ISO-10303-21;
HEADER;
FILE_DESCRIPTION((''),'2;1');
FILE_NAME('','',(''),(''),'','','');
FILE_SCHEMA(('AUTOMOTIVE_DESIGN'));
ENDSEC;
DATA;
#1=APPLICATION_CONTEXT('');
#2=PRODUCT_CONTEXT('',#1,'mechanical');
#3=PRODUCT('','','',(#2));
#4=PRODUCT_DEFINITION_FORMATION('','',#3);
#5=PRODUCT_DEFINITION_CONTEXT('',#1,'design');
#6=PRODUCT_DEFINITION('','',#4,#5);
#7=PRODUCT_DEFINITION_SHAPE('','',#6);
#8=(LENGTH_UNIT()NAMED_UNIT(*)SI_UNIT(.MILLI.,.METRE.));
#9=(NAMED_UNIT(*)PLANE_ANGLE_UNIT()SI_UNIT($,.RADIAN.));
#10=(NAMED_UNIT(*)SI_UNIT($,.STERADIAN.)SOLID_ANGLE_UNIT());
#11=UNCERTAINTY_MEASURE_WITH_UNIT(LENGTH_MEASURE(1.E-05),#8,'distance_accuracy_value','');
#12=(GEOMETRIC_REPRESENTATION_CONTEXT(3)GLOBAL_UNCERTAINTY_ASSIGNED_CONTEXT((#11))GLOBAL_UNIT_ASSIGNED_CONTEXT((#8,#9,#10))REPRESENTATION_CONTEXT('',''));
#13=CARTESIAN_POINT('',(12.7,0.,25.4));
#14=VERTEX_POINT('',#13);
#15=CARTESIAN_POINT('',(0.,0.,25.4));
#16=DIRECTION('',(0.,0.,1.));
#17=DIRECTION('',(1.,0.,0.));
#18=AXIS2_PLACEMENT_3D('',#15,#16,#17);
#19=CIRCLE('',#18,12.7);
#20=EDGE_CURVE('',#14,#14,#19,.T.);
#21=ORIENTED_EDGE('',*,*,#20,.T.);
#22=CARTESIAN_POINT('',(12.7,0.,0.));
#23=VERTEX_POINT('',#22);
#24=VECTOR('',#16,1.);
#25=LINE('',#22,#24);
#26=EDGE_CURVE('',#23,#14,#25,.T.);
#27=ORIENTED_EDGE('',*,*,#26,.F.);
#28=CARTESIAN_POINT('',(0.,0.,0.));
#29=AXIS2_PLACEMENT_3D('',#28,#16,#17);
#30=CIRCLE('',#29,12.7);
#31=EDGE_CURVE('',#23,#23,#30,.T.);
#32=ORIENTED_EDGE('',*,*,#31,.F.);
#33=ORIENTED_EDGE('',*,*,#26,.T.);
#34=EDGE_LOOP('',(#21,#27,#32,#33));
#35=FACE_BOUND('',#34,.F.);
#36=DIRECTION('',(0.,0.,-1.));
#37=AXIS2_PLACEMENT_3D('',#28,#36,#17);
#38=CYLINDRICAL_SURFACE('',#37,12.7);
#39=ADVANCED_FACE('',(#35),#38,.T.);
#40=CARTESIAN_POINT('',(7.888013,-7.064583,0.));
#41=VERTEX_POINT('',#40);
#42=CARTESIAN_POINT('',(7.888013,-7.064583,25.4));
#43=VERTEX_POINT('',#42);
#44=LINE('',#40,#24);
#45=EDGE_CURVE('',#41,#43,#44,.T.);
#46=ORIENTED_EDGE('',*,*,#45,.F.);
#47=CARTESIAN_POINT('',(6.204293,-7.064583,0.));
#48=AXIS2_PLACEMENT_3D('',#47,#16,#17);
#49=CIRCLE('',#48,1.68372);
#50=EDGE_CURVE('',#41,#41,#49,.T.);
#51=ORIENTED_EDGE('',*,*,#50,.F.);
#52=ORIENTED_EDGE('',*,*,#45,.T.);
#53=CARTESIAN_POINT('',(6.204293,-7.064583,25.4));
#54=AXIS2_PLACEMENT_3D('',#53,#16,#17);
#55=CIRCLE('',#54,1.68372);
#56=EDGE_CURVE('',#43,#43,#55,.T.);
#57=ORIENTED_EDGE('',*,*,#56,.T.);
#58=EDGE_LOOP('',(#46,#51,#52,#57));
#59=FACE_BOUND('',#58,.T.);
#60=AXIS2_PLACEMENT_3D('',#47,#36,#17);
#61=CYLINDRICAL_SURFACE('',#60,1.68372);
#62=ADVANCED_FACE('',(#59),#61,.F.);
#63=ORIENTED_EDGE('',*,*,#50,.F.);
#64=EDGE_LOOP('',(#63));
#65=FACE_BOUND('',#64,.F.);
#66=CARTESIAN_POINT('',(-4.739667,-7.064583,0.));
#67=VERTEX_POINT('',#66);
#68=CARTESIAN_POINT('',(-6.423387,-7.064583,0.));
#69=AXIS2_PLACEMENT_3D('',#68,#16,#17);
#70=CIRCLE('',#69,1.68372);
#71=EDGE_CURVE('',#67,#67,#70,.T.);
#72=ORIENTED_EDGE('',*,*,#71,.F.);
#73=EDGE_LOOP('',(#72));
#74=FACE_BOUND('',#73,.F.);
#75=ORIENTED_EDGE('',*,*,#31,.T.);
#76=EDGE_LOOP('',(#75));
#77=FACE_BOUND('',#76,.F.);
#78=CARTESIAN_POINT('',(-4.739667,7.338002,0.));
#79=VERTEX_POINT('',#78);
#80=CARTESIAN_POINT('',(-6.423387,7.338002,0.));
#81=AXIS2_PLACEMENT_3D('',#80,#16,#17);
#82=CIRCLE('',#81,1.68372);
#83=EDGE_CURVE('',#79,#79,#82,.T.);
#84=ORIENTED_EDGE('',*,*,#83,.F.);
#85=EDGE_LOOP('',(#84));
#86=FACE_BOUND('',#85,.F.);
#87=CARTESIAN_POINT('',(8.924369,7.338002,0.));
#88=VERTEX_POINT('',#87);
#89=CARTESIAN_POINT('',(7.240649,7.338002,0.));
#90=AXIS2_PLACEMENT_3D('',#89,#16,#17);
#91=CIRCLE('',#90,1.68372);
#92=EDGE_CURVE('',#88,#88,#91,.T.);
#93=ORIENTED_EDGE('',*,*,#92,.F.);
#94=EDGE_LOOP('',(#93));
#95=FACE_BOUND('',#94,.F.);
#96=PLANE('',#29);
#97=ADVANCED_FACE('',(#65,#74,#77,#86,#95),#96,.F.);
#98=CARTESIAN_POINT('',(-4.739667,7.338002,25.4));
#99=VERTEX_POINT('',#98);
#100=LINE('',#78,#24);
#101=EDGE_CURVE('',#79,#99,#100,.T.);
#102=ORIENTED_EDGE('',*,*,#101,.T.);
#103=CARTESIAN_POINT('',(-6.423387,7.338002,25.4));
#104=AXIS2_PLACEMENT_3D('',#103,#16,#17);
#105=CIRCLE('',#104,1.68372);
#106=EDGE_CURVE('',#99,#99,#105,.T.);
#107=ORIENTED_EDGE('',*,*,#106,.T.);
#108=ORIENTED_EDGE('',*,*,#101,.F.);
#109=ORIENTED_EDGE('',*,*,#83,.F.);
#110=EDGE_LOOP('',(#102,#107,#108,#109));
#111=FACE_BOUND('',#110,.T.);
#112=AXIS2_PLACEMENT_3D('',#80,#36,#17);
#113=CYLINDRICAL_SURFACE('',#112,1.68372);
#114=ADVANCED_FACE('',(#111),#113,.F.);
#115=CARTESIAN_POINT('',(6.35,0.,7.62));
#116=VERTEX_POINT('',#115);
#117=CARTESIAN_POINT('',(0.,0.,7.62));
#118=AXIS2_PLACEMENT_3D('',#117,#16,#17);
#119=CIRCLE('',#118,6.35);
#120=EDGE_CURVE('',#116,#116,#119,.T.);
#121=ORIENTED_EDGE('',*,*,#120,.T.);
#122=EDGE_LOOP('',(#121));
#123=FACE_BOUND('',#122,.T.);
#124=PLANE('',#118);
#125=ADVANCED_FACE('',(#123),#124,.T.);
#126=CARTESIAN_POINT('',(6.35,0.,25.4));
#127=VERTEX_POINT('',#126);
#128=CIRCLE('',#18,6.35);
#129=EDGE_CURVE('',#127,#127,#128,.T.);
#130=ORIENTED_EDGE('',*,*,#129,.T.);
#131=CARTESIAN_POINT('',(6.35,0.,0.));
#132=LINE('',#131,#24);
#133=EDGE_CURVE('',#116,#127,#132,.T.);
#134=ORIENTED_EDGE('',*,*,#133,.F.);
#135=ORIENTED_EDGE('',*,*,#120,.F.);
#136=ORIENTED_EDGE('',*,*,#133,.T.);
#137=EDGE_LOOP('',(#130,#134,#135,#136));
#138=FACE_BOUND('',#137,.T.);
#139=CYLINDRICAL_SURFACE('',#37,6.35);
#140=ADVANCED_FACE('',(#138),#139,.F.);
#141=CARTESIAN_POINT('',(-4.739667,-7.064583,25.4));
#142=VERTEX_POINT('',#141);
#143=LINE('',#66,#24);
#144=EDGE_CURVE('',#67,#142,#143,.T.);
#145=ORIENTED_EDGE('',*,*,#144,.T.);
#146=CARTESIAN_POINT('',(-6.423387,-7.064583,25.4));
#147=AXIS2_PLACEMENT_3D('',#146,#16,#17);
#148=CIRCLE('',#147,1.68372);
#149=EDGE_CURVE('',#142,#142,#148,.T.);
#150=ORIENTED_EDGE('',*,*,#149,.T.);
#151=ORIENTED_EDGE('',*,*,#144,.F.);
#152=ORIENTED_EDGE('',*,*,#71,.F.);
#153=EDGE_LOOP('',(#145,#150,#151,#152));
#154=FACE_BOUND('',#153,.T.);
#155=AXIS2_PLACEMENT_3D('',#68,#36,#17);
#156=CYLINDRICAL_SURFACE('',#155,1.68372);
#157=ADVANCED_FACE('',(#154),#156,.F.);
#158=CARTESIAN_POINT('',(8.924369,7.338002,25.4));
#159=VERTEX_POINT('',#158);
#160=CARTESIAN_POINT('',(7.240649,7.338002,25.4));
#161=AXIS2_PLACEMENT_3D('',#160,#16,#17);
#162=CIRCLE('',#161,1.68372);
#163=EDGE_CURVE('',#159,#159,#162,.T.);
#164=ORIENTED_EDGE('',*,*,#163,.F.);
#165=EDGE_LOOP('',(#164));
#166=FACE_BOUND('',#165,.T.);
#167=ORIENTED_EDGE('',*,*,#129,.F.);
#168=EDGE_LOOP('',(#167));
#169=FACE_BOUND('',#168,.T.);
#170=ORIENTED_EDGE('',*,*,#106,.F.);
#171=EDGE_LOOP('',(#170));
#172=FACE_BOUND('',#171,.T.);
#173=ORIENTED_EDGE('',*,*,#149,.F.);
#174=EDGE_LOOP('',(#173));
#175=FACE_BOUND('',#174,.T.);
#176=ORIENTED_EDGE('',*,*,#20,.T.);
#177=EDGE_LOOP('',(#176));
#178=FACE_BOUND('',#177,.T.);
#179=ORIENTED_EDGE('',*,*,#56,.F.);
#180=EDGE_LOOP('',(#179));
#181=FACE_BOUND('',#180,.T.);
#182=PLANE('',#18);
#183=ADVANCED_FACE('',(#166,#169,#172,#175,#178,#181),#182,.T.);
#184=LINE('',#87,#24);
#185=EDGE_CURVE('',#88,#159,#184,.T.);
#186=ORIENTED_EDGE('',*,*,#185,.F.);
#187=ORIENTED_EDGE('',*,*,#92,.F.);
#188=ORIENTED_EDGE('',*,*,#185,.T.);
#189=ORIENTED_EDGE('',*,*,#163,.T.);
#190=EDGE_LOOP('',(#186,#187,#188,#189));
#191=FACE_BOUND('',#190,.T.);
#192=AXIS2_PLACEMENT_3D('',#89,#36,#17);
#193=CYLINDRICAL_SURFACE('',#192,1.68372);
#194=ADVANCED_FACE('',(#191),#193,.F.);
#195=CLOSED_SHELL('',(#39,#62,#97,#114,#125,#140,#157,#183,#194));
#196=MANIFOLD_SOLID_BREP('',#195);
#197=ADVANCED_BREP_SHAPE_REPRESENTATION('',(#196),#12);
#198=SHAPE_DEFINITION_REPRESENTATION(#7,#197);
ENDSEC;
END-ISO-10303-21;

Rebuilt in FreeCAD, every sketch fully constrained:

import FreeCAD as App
import Part
import Sketcher

V = App.Vector
Q = App.Units.Quantity

doc = App.newDocument("Part")
body = doc.addObject("PartDesign::Body", "Body")

# Sketch on XY plane
sketch1 = body.newObject("Sketcher::SketchObject", "Sketch")
sketch1.AttachmentSupport = (doc.getObject("XY_Plane"), [""])
sketch1.MapMode = "FlatFace"
sketch1.addGeometry([
    Part.Circle(V(0, 0, 0), V(0, 0, 1), 12.7),  # 0
    Part.Circle(V(-6.4, -7.1, 0), V(0, 0, 1), 1.7),  # 1
    Part.Circle(V(0, 0, 0), V(0, 0, 1), 6.3),  # 2
    Part.Circle(V(6.2, -7.1, 0), V(0, 0, 1), 1.7),  # 3
    Part.Circle(V(-6.4, 7.3, 0), V(0, 0, 1), 1.7),  # 4
    Part.Circle(V(7.2, 7.3, 0), V(0, 0, 1), 1.7),  # 5
], False)
sketch1.addConstraint([
    Sketcher.Constraint("Coincident", 0, 3, -1, 1),
    Sketcher.Constraint("Coincident", 2, 3, -1, 1),
    Sketcher.Constraint("Equal", 1, 3),
    Sketcher.Constraint("Equal", 3, 4),
    Sketcher.Constraint("Equal", 4, 5),
    Sketcher.Constraint("Horizontal", 1, 3, 3, 3),
    Sketcher.Constraint("Horizontal", 4, 3, 5, 3),
    Sketcher.Constraint("Vertical", 1, 3, 4, 3),
    Sketcher.Constraint("Diameter", 0, Q("1 in")),
    Sketcher.Constraint("Diameter", 2, Q("0.5 in")),
    Sketcher.Constraint("Diameter", 1, 3.36744),
    Sketcher.Constraint("DistanceX", -1, 1, 5, 3, 7.240649),
    Sketcher.Constraint("DistanceX", 1, 3, 3, 3, 12.62768),
    Sketcher.Constraint("DistanceX", 1, 3, -1, 1, 6.423387),
    Sketcher.Constraint("DistanceY", 1, 3, -1, 1, 7.064583),
    Sketcher.Constraint("DistanceY", -1, 1, 4, 3, 7.338002),
])
pad1 = body.newObject("PartDesign::Pad", "Pad")
pad1.Profile = sketch1
pad1.Length = Q("1 in")

# Sketch on XY plane
sketch2 = body.newObject("Sketcher::SketchObject", "Sketch001")
sketch2.AttachmentSupport = (doc.getObject("XY_Plane"), [""])
sketch2.MapMode = "FlatFace"
sketch2.addGeometry([
    Part.Circle(V(0, 0, 0), V(0, 0, 1), 6.3),
    Part.Circle(V(0, 0, 0), V(0, 0, 1), 4),
], False)
sketch2.addConstraint([
    Sketcher.Constraint("Coincident", 0, 3, -1, 1),
    Sketcher.Constraint("Coincident", 1, 3, -1, 1),
    Sketcher.Constraint("Diameter", 0, Q("0.5 in")),
    Sketcher.Constraint("Diameter", 1, Q("0.315 in")),
])
pad2 = body.newObject("PartDesign::Pad", "Pad001")
pad2.Profile = sketch2
pad2.Length = Q("0.3 in")

# Sketch on XY plane
sketch3 = body.newObject("Sketcher::SketchObject", "Sketch002")
sketch3.AttachmentSupport = (doc.getObject("XY_Plane"), [""])
sketch3.MapMode = "FlatFace"
sketch3.addGeometry(Part.Circle(V(0, 0, 0), V(0, 0, 1), 4), False)
sketch3.addConstraint([
    Sketcher.Constraint("Coincident", 0, 3, -1, 1),
    Sketcher.Constraint("Diameter", 0, Q("0.315 in")),
])
pad3 = body.newObject("PartDesign::Pad", "Pad002")
pad3.Profile = sketch3
pad3.Length = Q("0.3 in")

doc.recompute()
